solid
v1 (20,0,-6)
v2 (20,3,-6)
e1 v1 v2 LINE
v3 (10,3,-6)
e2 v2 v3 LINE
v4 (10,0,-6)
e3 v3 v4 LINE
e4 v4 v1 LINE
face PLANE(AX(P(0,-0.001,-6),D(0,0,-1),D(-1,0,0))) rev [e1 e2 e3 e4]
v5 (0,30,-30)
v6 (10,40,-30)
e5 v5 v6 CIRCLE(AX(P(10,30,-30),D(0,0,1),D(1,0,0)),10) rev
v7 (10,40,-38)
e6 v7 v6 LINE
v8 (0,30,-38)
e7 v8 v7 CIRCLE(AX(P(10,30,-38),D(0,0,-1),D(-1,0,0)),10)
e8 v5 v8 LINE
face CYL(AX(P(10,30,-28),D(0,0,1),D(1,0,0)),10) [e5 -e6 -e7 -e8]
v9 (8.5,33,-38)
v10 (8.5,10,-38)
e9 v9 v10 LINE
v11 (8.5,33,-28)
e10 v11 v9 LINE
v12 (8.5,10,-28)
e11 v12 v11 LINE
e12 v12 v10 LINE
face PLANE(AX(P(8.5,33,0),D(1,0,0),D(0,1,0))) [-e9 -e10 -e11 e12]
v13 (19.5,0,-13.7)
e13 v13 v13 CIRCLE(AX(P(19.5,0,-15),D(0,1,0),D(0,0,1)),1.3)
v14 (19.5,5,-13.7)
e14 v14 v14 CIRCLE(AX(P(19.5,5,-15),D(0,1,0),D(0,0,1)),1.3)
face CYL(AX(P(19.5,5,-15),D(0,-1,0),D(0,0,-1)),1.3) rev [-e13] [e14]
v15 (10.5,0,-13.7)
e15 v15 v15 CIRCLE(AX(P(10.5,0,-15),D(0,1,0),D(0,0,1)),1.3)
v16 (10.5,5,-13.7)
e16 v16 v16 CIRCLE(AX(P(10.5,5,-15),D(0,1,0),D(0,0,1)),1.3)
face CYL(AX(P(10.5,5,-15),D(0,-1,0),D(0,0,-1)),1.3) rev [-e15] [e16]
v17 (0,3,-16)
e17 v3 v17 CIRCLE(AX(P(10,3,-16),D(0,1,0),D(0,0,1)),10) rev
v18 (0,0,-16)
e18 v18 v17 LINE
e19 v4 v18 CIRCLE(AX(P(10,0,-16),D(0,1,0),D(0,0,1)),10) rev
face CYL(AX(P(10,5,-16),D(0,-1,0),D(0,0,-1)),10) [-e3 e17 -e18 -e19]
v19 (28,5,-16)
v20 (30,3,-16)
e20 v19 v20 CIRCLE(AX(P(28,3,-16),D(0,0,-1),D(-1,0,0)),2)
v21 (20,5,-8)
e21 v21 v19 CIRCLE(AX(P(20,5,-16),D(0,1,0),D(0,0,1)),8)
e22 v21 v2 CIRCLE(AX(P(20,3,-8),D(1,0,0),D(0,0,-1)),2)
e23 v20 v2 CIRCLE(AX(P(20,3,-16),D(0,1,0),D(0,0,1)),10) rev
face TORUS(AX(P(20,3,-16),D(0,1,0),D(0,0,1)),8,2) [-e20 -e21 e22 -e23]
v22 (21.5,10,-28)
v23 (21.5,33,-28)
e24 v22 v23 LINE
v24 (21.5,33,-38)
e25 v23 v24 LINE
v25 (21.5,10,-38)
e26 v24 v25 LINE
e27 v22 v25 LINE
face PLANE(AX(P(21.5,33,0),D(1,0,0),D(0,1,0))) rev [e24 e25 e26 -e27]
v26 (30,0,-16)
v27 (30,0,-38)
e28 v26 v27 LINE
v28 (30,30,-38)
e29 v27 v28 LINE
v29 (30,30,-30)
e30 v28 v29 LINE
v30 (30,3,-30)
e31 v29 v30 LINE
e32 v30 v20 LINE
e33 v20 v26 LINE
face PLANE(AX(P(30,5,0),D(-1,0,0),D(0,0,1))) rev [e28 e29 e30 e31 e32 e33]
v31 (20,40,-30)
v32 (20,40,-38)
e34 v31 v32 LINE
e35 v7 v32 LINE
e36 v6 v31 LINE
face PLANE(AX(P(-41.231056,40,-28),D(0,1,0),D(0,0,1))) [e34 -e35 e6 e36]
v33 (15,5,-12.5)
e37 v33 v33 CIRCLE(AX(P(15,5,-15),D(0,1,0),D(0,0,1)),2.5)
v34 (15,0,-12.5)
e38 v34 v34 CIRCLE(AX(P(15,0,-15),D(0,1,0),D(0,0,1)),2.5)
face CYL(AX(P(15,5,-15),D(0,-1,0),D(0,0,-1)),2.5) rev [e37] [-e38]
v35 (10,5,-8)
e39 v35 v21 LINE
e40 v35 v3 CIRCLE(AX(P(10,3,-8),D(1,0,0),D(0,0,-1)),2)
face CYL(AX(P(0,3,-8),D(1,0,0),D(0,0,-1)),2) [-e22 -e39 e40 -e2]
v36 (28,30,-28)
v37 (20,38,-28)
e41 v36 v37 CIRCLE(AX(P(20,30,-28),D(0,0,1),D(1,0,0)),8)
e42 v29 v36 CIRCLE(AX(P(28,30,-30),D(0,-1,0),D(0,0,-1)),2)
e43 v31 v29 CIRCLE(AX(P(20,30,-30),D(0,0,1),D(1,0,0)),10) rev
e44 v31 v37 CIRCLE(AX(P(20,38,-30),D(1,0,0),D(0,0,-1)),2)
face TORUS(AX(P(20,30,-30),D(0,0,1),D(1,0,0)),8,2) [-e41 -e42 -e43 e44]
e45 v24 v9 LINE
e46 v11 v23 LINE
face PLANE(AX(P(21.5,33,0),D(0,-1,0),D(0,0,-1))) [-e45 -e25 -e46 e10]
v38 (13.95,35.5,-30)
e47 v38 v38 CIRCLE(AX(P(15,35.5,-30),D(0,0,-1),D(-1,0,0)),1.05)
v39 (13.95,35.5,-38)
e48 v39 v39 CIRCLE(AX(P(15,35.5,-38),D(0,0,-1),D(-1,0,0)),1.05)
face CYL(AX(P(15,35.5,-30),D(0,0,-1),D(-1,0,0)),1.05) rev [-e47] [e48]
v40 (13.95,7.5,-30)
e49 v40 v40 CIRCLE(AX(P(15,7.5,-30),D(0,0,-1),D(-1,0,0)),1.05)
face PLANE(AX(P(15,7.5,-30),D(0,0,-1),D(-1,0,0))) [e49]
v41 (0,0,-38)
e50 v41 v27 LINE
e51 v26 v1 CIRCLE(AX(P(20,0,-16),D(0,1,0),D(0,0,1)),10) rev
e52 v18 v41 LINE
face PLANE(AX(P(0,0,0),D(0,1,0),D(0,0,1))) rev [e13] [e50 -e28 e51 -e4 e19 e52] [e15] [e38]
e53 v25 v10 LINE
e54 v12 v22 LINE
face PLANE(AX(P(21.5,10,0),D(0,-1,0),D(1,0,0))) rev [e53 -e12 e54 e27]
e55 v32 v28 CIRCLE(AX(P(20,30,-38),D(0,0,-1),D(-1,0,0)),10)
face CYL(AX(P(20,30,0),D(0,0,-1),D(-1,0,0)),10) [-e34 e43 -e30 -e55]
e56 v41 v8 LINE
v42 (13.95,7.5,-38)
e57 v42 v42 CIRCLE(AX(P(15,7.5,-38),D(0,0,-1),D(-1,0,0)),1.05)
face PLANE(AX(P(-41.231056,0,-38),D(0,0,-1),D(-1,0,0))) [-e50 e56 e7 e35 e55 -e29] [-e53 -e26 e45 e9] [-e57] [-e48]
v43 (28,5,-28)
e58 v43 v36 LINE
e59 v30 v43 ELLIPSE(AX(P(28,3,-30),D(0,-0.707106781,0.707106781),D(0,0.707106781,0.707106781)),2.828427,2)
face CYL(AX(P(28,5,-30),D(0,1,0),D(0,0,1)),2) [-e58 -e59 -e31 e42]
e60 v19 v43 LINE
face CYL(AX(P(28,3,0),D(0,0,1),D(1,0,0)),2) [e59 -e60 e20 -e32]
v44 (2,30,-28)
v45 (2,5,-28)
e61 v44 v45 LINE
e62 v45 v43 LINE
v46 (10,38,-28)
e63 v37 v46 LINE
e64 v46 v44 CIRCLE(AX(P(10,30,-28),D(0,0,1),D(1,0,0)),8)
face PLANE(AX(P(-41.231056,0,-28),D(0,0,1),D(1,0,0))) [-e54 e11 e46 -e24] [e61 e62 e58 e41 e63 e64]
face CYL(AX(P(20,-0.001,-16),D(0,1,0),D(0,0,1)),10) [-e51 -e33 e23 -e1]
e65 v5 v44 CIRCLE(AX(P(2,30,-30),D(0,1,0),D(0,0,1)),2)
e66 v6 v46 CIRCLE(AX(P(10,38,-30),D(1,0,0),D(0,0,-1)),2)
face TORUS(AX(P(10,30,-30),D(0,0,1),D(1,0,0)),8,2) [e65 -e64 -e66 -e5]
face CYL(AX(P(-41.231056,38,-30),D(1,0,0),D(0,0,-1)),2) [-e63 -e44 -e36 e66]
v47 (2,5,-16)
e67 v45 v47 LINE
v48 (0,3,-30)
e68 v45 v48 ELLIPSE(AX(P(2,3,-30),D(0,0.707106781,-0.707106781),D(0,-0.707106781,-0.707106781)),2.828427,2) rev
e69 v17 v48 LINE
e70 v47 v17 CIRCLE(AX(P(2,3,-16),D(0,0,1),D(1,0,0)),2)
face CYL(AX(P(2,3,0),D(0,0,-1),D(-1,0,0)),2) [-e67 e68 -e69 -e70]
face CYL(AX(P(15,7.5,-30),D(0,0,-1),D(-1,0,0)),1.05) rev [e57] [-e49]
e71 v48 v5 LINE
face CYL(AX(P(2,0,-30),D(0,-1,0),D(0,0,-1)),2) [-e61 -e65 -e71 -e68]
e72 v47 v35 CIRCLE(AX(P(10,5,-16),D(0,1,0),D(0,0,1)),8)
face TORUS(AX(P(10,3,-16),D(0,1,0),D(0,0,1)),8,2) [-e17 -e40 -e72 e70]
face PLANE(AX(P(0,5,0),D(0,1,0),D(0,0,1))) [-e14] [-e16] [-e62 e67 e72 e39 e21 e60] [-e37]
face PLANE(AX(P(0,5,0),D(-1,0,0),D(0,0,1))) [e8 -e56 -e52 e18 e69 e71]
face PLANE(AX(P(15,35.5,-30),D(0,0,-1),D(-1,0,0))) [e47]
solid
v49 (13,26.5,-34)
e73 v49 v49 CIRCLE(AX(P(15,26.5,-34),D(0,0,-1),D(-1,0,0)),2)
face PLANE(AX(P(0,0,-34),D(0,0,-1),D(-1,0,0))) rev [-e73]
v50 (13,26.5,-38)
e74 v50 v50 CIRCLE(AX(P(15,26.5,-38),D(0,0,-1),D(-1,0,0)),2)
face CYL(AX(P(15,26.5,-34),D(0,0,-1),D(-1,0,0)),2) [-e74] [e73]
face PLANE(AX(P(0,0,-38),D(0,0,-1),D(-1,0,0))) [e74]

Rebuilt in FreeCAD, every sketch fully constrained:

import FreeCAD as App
import Part
import Sketcher
Q = App.Units.Quantity


def edges_at(feature, points):
    """Names of the edges that pass closest to the given points."""
    edges = feature.Shape.Edges
    near = lambda p: min(range(len(edges)), key=lambda i: edges[i].distToShape(Part.Vertex(*p))[0])
    return sorted({f"Edge{near(p) + 1}" for p in points})

doc = App.newDocument("Part")
body = doc.addObject("PartDesign::Body", "Body")

sketch1 = body.newObject("Sketcher::SketchObject", "Sketch")
sketch1.AttachmentSupport = (doc.getObject("XZ_Plane"), [""])
sketch1.MapMode = "FlatFace"
sketch1.addGeometry([
    Part.LineSegment(App.Vector(0, -30, 0), App.Vector(0, 0, 0)),
    Part.LineSegment(App.Vector(0, 0, 0), App.Vector(30, 0, 0)),
    Part.LineSegment(App.Vector(30, 0, 0), App.Vector(30, -30, 0)),
    Part.LineSegment(App.Vector(30, -30, 0), App.Vector(0, -30, 0)),
    Part.Circle(App.Vector(10.5, -15, 0), App.Vector(0, 0, 1), 1.3),
    Part.Circle(App.Vector(15, -15, 0), App.Vector(0, 0, 1), 2.5),
    Part.Circle(App.Vector(19.5, -15, 0), App.Vector(0, 0, 1), 1.3),
], False)
sketch1.addConstraint([
    Sketcher.Constraint("Coincident", 0, 2, 1, 1),
    Sketcher.Constraint("Coincident", 1, 2, 2, 1),
    Sketcher.Constraint("Coincident", 2, 2, 3, 1),
    Sketcher.Constraint("Coincident", 3, 2, 0, 1),
    Sketcher.Constraint("Vertical", 0),
    Sketcher.Constraint("Horizontal", 1),
    Sketcher.Constraint("Vertical", 2),
    Sketcher.Constraint("Horizontal", 3),
    Sketcher.Constraint("Coincident", 0, 2, -1, 1),
    Sketcher.Constraint("Equal", 4, 6),
    Sketcher.Constraint("Horizontal", 4, 3, 5, 3),
    Sketcher.Constraint("Horizontal", 5, 3, 6, 3),
    Sketcher.Constraint("Equal", 3, 0),
    Sketcher.Constraint("Diameter", 5, Q("5 mm")),
    Sketcher.Constraint("Diameter", 4, Q("2.6 mm")),
    Sketcher.Constraint("DistanceX", 1, 1, 1, 2, Q("30 mm")),
    Sketcher.Constraint("DistanceY", 4, 3, -1, 1, Q("15 mm")),
    Sketcher.Constraint("DistanceX", -1, 1, 5, 3, Q("15 mm")),
    Sketcher.Constraint("DistanceX", 4, 3, 6, 3, Q("9 mm")),
    Sketcher.Constraint("DistanceX", -1, 1, 4, 3, Q("10.5 mm")),
])
pad1 = body.newObject("PartDesign::Pad", "Pad")
pad1.Profile = sketch1
pad1.Length = 5
pad1.Reversed = True

sketch2 = body.newObject("Sketcher::SketchObject", "Sketch001")
sketch2.AttachmentSupport = (doc.getObject("YZ_Plane"), [""])
sketch2.MapMode = "FlatFace"
sketch2.AttachmentOffset = App.Placement(App.Vector(0, 0, 30), App.Rotation())
sketch2.addGeometry([
    Part.LineSegment(App.Vector(40, -28, 0), App.Vector(0, -28, 0)),
    Part.LineSegment(App.Vector(0, -28, 0), App.Vector(0, -38, 0)),
    Part.LineSegment(App.Vector(0, -38, 0), App.Vector(40, -38, 0)),
    Part.LineSegment(App.Vector(40, -38, 0), App.Vector(40, -28, 0)),
], False)
sketch2.addConstraint([
    Sketcher.Constraint("Coincident", 0, 2, 1, 1),
    Sketcher.Constraint("Coincident", 1, 2, 2, 1),
    Sketcher.Constraint("Coincident", 2, 2, 3, 1),
    Sketcher.Constraint("Coincident", 3, 2, 0, 1),
    Sketcher.Constraint("Horizontal", 0),
    Sketcher.Constraint("Vertical", 1),
    Sketcher.Constraint("Horizontal", 2),
    Sketcher.Constraint("Vertical", 3),
    Sketcher.Constraint("PointOnObject", 0, 2, -2),
    Sketcher.Constraint("DistanceX", 0, 2, 0, 1, Q("40 mm")),
    Sketcher.Constraint("DistanceY", 1, 2, 1, 1, Q("10 mm")),
    Sketcher.Constraint("DistanceY", 0, 2, -1, 1, Q("28 mm")),
])
pad2 = body.newObject("PartDesign::Pad", "Pad001")
pad2.Profile = sketch2
pad2.Length = 30
pad2.Reversed = True

sketch3 = body.newObject("Sketcher::SketchObject", "Sketch002")
sketch3.AttachmentSupport = (doc.getObject("XY_Plane"), [""])
sketch3.MapMode = "FlatFace"
sketch3.AttachmentOffset = App.Placement(App.Vector(0, 0, -38), App.Rotation())
sketch3.addGeometry([
    Part.LineSegment(App.Vector(21.5, 33, 0), App.Vector(21.5, 10, 0)),
    Part.LineSegment(App.Vector(21.5, 10, 0), App.Vector(8.5, 10, 0)),
    Part.LineSegment(App.Vector(8.5, 10, 0), App.Vector(8.5, 33, 0)),
    Part.LineSegment(App.Vector(8.5, 33, 0), App.Vector(21.5, 33, 0)),
], False)
sketch3.addConstraint([
    Sketcher.Constraint("Coincident", 0, 2, 1, 1),
    Sketcher.Constraint("Coincident", 1, 2, 2, 1),
    Sketcher.Constraint("Coincident", 2, 2, 3, 1),
    Sketcher.Constraint("Coincident", 3, 2, 0, 1),
    Sketcher.Constraint("Vertical", 0),
    Sketcher.Constraint("Horizontal", 1),
    Sketcher.Constraint("Vertical", 2),
    Sketcher.Constraint("Horizontal", 3),
    Sketcher.Constraint("DistanceX", 1, 2, 1, 1, Q("13 mm")),
    Sketcher.Constraint("DistanceY", 0, 2, 0, 1, Q("23 mm")),
    Sketcher.Constraint("DistanceY", -1, 1, 0, 2, Q("10 mm")),
    Sketcher.Constraint("DistanceX", -1, 1, 0, 2, Q("21.5 mm")),
])
pocket1 = body.newObject("PartDesign::Pocket", "Pocket")
pocket1.Profile = sketch3
pocket1.Type = "ThroughAll"
pocket1.Reversed = True

sketch4 = body.newObject("Sketcher::SketchObject", "Sketch003")
sketch4.AttachmentSupport = (doc.getObject("XY_Plane"), [""])
sketch4.MapMode = "FlatFace"
sketch4.AttachmentOffset = App.Placement(App.Vector(0, 0, -38), App.Rotation())
sketch4.addGeometry([
    Part.Circle(App.Vector(15, 35.5, 0), App.Vector(0, 0, 1), 1.05),
    Part.Circle(App.Vector(15, 7.5, 0), App.Vector(0, 0, 1), 1.05),
], False)
sketch4.addConstraint([
    Sketcher.Constraint("Equal", 0, 1),
    Sketcher.Constraint("Vertical", 0, 3, 1, 3),
    Sketcher.Constraint("Diameter", 0, Q("2.1 mm")),
    Sketcher.Constraint("DistanceX", -1, 1, 0, 3, Q("15 mm")),
    Sketcher.Constraint("DistanceY", 1, 3, 0, 3, Q("28 mm")),
    Sketcher.Constraint("DistanceY", -1, 1, 0, 3, Q("35.5 mm")),
])
pocket2 = body.newObject("PartDesign::Pocket", "Pocket001")
pocket2.Profile = sketch4
pocket2.Length = 8
pocket2.Reversed = True

sketch5 = body.newObject("Sketcher::SketchObject", "Sketch004")
sketch5.AttachmentSupport = (doc.getObject("XZ_Plane"), [""])
sketch5.MapMode = "FlatFace"
sketch5.AttachmentOffset = App.Placement(App.Vector(0, 0, -5), App.Rotation())
sketch5.addGeometry([
    Part.LineSegment(App.Vector(0, -6, 0), App.Vector(0, 0, 0)),
    Part.LineSegment(App.Vector(0, 0, 0), App.Vector(30, 0, 0)),
    Part.LineSegment(App.Vector(30, 0, 0), App.Vector(30, -6, 0)),
    Part.LineSegment(App.Vector(30, -6, 0), App.Vector(0, -6, 0)),
], False)
sketch5.addConstraint([
    Sketcher.Constraint("Coincident", 0, 2, 1, 1),
    Sketcher.Constraint("Coincident", 1, 2, 2, 1),
    Sketcher.Constraint("Coincident", 2, 2, 3, 1),
    Sketcher.Constraint("Coincident", 3, 2, 0, 1),
    Sketcher.Constraint("Vertical", 0),
    Sketcher.Constraint("Horizontal", 1),
    Sketcher.Constraint("Vertical", 2),
    Sketcher.Constraint("Horizontal", 3),
    Sketcher.Constraint("Coincident", 0, 2, -1, 1),
    Sketcher.Constraint("DistanceX", 1, 1, 1, 2, Q("30 mm")),
    Sketcher.Constraint("DistanceY", 0, 1, 0, 2, Q("6 mm")),
])
pocket3 = body.newObject("PartDesign::Pocket", "Pocket002")
pocket3.Profile = sketch5
pocket3.Length = 5
pocket3.Reversed = True
doc.recompute()

fillet = body.newObject("PartDesign::Fillet", "Fillet")
fillet.Base = (pocket3, edges_at(pocket3, [
    (30, 40, -33),
    (0, 40, -33),
    (0, 2.5, -6),
    (30, 2.5, -6),
]))
fillet.Radius = 10
doc.recompute()

fillet2 = body.newObject("PartDesign::Fillet", "Fillet001")
fillet2.Base = (fillet, edges_at(fillet, [
    (2.929, 5, -8.929),
    (15, 40, -28),
    (0, 17.5, -28),
    (30, 17.5, -28),
    (27.071, 37.071, -28),
    (2.929, 37.071, -28),
    (0, 5, -22),
    (30, 5, -22),
    (15, 5, -6),
    (27.071, 5, -8.929),
]))
fillet2.Radius = 2
body2 = doc.addObject("PartDesign::Body", "Body001")

sketch6 = body2.newObject("Sketcher::SketchObject", "Sketch005")
sketch6.AttachmentSupport = (doc.getObject("XY_Plane001"), [""])
sketch6.MapMode = "FlatFace"
sketch6.AttachmentOffset = App.Placement(App.Vector(0, 0, -38), App.Rotation())
sketch6.addGeometry(Part.Circle(App.Vector(15, 26.5, 0), App.Vector(0, 0, 1), 2), False)
sketch6.addConstraint([
    Sketcher.Constraint("Diameter", 0, Q("4 mm")),
    Sketcher.Constraint("DistanceX", -1, 1, 0, 3, Q("15 mm")),
    Sketcher.Constraint("DistanceY", -1, 1, 0, 3, Q("26.5 mm")),
])
pad3 = body2.newObject("PartDesign::Pad", "Pad002")
pad3.Profile = sketch6
pad3.Length = 4

doc.recompute()
